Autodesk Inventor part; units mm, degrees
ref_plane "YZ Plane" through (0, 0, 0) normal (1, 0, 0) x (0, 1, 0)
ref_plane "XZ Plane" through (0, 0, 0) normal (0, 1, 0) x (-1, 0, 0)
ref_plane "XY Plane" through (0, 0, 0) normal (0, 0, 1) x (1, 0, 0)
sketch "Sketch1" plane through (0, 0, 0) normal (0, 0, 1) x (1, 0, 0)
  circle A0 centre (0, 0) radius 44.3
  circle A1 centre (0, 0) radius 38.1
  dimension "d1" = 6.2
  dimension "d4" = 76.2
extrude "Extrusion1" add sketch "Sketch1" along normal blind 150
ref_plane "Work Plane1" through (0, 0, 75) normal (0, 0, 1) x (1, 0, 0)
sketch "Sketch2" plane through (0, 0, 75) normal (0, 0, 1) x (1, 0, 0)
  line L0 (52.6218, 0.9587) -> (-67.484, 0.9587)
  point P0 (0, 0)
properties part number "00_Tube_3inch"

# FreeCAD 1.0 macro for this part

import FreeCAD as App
import Part
import Sketcher
from FreeCAD import Vector
Q = App.Units.Quantity

doc = App.newDocument("Part")
body = doc.addObject("PartDesign::Body", "Body")

# Sketch on XY plane
sketch1 = doc.addObject("Sketcher::SketchObject", "Sketch")
body.addObject(sketch1)
sketch1.AttachmentSupport = (doc.XY_Plane, [""])
sketch1.MapMode = "FlatFace"
sketch1.addGeometry([
    Part.Circle(Vector(0, 0, 0), Vector(0, 0, 1), 44),
    Part.Circle(Vector(0, 0, 0), Vector(0, 0, 1), 38),
], False)
sketch1.addConstraint([
    Sketcher.Constraint("Coincident", 0, 3, -1, 1),
    Sketcher.Constraint("Coincident", 1, 3, -1, 1),
    Sketcher.Constraint("Diameter", 1, Q("3 in")),
    Sketcher.Constraint("Diameter", 0, Q("3.4882 in")),
])
pad1 = doc.addObject("PartDesign::Pad", "Pad")
body.addObject(pad1)
pad1.Profile = sketch1
pad1.Length = Q("5.9055118 in")

doc.recompute()
